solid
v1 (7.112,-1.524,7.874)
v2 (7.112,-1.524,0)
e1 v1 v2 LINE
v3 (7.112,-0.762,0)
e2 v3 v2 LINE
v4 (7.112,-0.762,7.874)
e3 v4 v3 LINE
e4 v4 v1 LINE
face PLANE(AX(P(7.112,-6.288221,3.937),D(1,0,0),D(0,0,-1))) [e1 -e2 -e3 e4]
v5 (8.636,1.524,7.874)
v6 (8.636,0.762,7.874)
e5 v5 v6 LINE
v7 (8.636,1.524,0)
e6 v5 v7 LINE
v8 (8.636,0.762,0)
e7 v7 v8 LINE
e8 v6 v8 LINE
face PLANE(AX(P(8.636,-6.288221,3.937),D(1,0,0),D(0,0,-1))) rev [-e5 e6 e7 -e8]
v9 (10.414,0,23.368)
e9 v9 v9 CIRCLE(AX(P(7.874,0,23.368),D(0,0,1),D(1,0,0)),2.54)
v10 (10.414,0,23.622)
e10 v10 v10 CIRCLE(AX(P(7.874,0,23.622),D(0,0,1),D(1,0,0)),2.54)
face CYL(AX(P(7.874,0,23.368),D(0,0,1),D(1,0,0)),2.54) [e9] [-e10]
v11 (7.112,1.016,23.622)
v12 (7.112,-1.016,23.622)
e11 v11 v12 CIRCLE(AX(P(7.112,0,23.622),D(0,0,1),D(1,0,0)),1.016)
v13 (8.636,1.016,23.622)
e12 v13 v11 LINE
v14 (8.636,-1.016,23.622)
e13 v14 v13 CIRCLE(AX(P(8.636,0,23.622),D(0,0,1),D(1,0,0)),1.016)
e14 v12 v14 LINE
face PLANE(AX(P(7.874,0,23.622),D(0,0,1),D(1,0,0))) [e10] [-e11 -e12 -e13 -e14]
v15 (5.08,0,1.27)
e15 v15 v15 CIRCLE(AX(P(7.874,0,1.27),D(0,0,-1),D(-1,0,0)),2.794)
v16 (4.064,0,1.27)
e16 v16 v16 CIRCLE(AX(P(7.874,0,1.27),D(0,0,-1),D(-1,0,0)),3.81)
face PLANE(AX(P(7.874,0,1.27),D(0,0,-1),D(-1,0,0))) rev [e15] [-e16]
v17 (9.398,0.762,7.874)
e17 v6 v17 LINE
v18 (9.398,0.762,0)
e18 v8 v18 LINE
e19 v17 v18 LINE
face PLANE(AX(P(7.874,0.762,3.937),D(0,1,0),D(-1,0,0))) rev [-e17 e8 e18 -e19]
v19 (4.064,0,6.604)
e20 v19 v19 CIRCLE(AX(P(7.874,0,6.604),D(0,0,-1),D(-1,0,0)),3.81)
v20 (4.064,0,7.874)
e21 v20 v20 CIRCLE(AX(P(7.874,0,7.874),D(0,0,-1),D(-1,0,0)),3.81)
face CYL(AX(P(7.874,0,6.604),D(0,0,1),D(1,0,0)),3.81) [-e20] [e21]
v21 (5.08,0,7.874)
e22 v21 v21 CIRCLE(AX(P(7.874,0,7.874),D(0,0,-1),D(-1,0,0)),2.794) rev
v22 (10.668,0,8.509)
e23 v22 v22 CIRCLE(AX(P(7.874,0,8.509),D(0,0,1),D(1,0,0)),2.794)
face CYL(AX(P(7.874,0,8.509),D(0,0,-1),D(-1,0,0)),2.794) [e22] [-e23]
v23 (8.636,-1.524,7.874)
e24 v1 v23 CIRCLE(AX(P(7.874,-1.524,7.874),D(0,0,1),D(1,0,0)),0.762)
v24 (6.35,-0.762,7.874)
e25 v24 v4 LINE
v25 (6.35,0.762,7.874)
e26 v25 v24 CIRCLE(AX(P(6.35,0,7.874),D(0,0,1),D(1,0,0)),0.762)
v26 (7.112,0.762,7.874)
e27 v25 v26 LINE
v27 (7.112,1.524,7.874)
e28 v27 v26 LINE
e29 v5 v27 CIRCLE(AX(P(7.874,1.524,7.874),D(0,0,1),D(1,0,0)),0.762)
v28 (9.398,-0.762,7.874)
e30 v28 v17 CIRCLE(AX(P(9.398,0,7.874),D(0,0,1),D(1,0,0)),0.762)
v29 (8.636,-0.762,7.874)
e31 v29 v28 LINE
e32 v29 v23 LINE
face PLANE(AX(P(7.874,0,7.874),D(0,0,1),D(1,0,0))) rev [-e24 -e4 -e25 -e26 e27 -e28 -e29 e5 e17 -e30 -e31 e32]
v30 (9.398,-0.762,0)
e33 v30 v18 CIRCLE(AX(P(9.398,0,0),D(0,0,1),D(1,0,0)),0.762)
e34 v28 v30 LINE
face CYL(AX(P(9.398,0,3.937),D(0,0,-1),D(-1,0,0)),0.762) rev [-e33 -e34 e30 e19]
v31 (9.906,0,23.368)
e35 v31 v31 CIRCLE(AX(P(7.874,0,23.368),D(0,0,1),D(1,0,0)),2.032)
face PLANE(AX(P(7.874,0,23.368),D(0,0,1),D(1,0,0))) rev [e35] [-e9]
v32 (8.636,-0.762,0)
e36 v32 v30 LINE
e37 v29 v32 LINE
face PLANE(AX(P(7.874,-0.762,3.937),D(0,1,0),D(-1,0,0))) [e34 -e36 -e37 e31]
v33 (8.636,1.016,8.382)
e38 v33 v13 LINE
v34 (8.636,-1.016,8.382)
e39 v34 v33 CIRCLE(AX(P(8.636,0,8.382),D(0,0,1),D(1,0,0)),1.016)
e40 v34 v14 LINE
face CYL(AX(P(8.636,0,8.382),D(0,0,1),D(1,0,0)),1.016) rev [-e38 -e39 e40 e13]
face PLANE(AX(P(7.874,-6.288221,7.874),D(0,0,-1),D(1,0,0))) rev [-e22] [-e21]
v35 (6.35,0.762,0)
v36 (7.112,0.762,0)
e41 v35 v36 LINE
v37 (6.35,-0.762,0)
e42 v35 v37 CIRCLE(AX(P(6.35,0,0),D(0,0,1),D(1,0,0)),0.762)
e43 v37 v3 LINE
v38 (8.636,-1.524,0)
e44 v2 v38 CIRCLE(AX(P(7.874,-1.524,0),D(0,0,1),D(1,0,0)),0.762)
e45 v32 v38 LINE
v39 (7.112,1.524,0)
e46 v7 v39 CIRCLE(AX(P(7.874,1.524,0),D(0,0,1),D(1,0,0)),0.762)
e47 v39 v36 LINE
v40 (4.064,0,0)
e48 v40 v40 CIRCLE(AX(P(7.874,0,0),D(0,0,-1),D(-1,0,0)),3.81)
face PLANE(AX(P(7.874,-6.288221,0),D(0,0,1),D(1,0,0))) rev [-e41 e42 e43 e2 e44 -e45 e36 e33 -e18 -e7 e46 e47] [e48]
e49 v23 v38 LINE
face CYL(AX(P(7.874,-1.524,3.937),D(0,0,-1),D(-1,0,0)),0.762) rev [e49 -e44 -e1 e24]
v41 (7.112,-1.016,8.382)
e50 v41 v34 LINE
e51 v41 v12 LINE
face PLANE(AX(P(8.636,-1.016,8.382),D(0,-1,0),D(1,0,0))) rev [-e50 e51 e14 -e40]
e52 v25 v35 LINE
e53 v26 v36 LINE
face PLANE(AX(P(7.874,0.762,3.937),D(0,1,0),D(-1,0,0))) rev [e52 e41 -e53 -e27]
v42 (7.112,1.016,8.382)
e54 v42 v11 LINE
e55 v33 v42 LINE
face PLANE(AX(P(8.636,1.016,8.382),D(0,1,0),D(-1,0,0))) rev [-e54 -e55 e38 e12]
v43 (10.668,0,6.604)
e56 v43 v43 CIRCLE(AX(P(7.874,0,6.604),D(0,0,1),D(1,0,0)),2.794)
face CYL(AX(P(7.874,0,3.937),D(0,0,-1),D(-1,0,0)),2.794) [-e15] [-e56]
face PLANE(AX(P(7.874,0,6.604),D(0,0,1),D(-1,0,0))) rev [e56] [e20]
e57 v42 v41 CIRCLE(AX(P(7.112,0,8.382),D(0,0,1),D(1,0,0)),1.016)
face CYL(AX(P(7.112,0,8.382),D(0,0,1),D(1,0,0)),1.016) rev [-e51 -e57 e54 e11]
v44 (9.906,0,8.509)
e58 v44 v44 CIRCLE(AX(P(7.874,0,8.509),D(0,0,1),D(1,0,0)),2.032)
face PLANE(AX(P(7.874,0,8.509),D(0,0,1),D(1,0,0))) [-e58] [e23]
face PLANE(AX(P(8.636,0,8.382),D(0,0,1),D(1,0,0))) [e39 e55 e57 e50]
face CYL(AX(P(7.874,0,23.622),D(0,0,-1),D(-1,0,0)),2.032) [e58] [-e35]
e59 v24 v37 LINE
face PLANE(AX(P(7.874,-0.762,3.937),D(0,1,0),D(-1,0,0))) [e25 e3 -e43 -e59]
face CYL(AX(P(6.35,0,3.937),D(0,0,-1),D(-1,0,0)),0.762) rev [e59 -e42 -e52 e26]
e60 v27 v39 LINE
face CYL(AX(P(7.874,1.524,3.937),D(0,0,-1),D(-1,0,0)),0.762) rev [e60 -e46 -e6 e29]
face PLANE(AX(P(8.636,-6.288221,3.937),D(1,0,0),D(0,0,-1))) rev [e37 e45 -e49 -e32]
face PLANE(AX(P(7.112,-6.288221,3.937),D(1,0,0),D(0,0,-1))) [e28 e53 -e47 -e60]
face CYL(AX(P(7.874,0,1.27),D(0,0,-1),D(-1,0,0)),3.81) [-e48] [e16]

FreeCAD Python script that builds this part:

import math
import FreeCAD as App
import Part
import Sketcher
Q = App.Units.Quantity

doc = App.newDocument("Part")
body = doc.addObject("PartDesign::Body", "Body")

sketch1 = body.newObject("Sketcher::SketchObject", "Sketch")
sketch1.AttachmentSupport = (doc.getObject("XY_Plane"), [""])
sketch1.MapMode = "FlatFace"
sketch1.addGeometry(Part.Circle(App.Vector(7.874, 0, 0), App.Vector(0, 0, 1), 2.794), False)
sketch1.addGeometry(Part.ArcOfCircle(Part.Circle(App.Vector(6.35, 0, 0), App.Vector(0, 0, 1), 0.762), math.radians(90), math.radians(270)), False)
sketch1.addGeometry(Part.LineSegment(App.Vector(6.35, 0.762, 0), App.Vector(7.112, 0.762, 0)), False)
sketch1.addGeometry(Part.LineSegment(App.Vector(7.112, 0.762, 0), App.Vector(7.112, 1.524, 0)), False)
sketch1.addGeometry(Part.ArcOfCircle(Part.Circle(App.Vector(7.874, 1.524, 0), App.Vector(0, 0, 1), 0.762), math.radians(0), math.radians(180)), False)
sketch1.addGeometry(Part.LineSegment(App.Vector(8.636, 1.524, 0), App.Vector(8.636, 0.762, 0)), False)
sketch1.addGeometry(Part.LineSegment(App.Vector(8.636, 0.762, 0), App.Vector(9.398, 0.762, 0)), False)
sketch1.addGeometry(Part.ArcOfCircle(Part.Circle(App.Vector(9.398, 0, 0), App.Vector(0, 0, 1), 0.762), math.radians(-90), math.radians(90)), False)
sketch1.addGeometry(Part.LineSegment(App.Vector(9.398, -0.762, 0), App.Vector(8.636, -0.762, 0)), False)
sketch1.addGeometry(Part.LineSegment(App.Vector(8.636, -0.762, 0), App.Vector(8.636, -1.524, 0)), False)
sketch1.addGeometry(Part.ArcOfCircle(Part.Circle(App.Vector(7.874, -1.524, 0), App.Vector(0, 0, 1), 0.762), math.radians(180), math.radians(360)), False)
sketch1.addGeometry(Part.LineSegment(App.Vector(7.112, -1.524, 0), App.Vector(7.112, -0.762, 0)), False)
sketch1.addGeometry(Part.LineSegment(App.Vector(7.112, -0.762, 0), App.Vector(6.35, -0.762, 0)), False)
sketch1.addConstraint(Sketcher.Constraint("Tangent", 1, 1, 2, 1))
sketch1.addConstraint(Sketcher.Constraint("Coincident", 2, 2, 3, 1))
sketch1.addConstraint(Sketcher.Constraint("Tangent", 3, 2, 4, 2))
sketch1.addConstraint(Sketcher.Constraint("Tangent", 4, 1, 5, 1))
sketch1.addConstraint(Sketcher.Constraint("Coincident", 5, 2, 6, 1))
sketch1.addConstraint(Sketcher.Constraint("Tangent", 6, 2, 7, 2))
sketch1.addConstraint(Sketcher.Constraint("Tangent", 7, 1, 8, 1))
sketch1.addConstraint(Sketcher.Constraint("Coincident", 8, 2, 9, 1))
sketch1.addConstraint(Sketcher.Constraint("Tangent", 9, 2, 10, 2))
sketch1.addConstraint(Sketcher.Constraint("Tangent", 10, 1, 11, 1))
sketch1.addConstraint(Sketcher.Constraint("Coincident", 11, 2, 12, 1))
sketch1.addConstraint(Sketcher.Constraint("Tangent", 12, 2, 1, 2))
sketch1.addConstraint(Sketcher.Constraint("Horizontal", 2))
sketch1.addConstraint(Sketcher.Constraint("Vertical", 3))
sketch1.addConstraint(Sketcher.Constraint("Vertical", 5))
sketch1.addConstraint(Sketcher.Constraint("Horizontal", 6))
sketch1.addConstraint(Sketcher.Constraint("Horizontal", 8))
sketch1.addConstraint(Sketcher.Constraint("Vertical", 9))
sketch1.addConstraint(Sketcher.Constraint("Vertical", 11))
sketch1.addConstraint(Sketcher.Constraint("Horizontal", 12))
sketch1.addConstraint(Sketcher.Constraint("Equal", 1, 4))
sketch1.addConstraint(Sketcher.Constraint("Equal", 4, 7))
sketch1.addConstraint(Sketcher.Constraint("Equal", 7, 10))
sketch1.addConstraint(Sketcher.Constraint("Symmetric", 4, 3, 10, 3, -1))
sketch1.addConstraint(Sketcher.Constraint("PointOnObject", 0, 3, -1))
sketch1.addConstraint(Sketcher.Constraint("PointOnObject", 1, 3, -1))
sketch1.addConstraint(Sketcher.Constraint("PointOnObject", 7, 3, -1))
sketch1.addConstraint(Sketcher.Constraint("Vertical", 0, 3, 4, 3))
sketch1.addConstraint(Sketcher.Constraint("Equal", 2, 6))
sketch1.addConstraint(Sketcher.Constraint("Equal", 12, 3))
sketch1.addConstraint(Sketcher.Constraint("Diameter", 0, Q("0.22 in")))
sketch1.addConstraint(Sketcher.Constraint("Radius", 1, Q("0.03 in")))
sketch1.addConstraint(Sketcher.Constraint("DistanceX", 2, 1, 2, 2, Q("0.03 in")))
sketch1.addConstraint(Sketcher.Constraint("DistanceX", -1, 1, 0, 3, Q("0.31 in")))
pad1 = body.newObject("PartDesign::Pad", "Pad")
pad1.Profile = sketch1
pad1.Length = Q("0.155 in")

sketch2 = body.newObject("Sketcher::SketchObject", "Sketch001")
sketch2.AttachmentSupport = (doc.getObject("XY_Plane"), [""])
sketch2.MapMode = "FlatFace"
sketch2.addGeometry(Part.Circle(App.Vector(7.874, 0, 0), App.Vector(0, 0, 1), 3.81), False)
sketch2.addGeometry(Part.Circle(App.Vector(7.874, 0, 0), App.Vector(0, 0, 1), 2.794), False)
sketch2.addConstraint(Sketcher.Constraint("Coincident", 1, 3, 0, 3))
sketch2.addConstraint(Sketcher.Constraint("PointOnObject", 0, 3, -1))
sketch2.addConstraint(Sketcher.Constraint("Diameter", 0, Q("0.3 in")))
sketch2.addConstraint(Sketcher.Constraint("Diameter", 1, Q("0.22 in")))
sketch2.addConstraint(Sketcher.Constraint("DistanceX", -1, 1, 0, 3, Q("0.31 in")))
pad2 = body.newObject("PartDesign::Pad", "Pad001")
pad2.Profile = sketch2
pad2.Length = Q("0.05 in")
doc.recompute()

datumplane = body.newObject("PartDesign::Plane", "DatumPlane")
datumplane.AttachmentSupport = (doc.getObject("XY_Plane"), [""])
datumplane.MapMode = "FlatFace"
datumplane.AttachmentOffset = App.Placement(App.Vector(0, 0, 0.155 * 25.4), App.Rotation())
mirrored = body.newObject("PartDesign::Mirrored", "Mirrored")
mirrored.Originals = [pad1, pad2]
mirrored.MirrorPlane = (datumplane, [""])
body.Tip = mirrored

sketch3 = body.newObject("Sketcher::SketchObject", "Sketch002")
sketch3.AttachmentSupport = (doc.getObject("XY_Plane"), [""])
sketch3.MapMode = "FlatFace"
sketch3.AttachmentOffset = App.Placement(App.Vector(0, 0, 0.31 * 25.4), App.Rotation())
sketch3.addGeometry(Part.Circle(App.Vector(7.874, 0, 0), App.Vector(0, 0, 1), 2.794), False)
sketch3.addConstraint(Sketcher.Constraint("PointOnObject", 0, 3, -1))
sketch3.addConstraint(Sketcher.Constraint("Diameter", 0, Q("0.22 in")))
sketch3.addConstraint(Sketcher.Constraint("DistanceX", -1, 1, 0, 3, Q("0.31 in")))
pad3 = body.newObject("PartDesign::Pad", "Pad002")
pad3.Profile = sketch3
pad3.Length = Q("0.025 in")

sketch4 = body.newObject("Sketcher::SketchObject", "Sketch003")
sketch4.AttachmentSupport = (doc.getObject("XY_Plane"), [""])
sketch4.MapMode = "FlatFace"
sketch4.AttachmentOffset = App.Placement(App.Vector(0, 0, 0.335 * 25.4), App.Rotation())
sketch4.addGeometry(Part.Circle(App.Vector(7.874, 0, 0), App.Vector(0, 0, 1), 2.032), False)
sketch4.addConstraint(Sketcher.Constraint("PointOnObject", 0, 3, -1))
sketch4.addConstraint(Sketcher.Constraint("Diameter", 0, Q("0.16 in")))
sketch4.addConstraint(Sketcher.Constraint("DistanceX", -1, 1, 0, 3, Q("0.31 in")))
pad4 = body.newObject("PartDesign::Pad", "Pad003")
pad4.Profile = sketch4
pad4.Length = Q("0.595 in")

sketch5 = body.newObject("Sketcher::SketchObject", "Sketch004")
sketch5.AttachmentSupport = (doc.getObject("XY_Plane"), [""])
sketch5.MapMode = "FlatFace"
sketch5.AttachmentOffset = App.Placement(App.Vector(0, 0, 0.93 * 25.4), App.Rotation())
sketch5.addGeometry(Part.Circle(App.Vector(7.874, 0, 0), App.Vector(0, 0, 1), 2.54), False)
sketch5.addGeometry(Part.Circle(App.Vector(7.874, 0, 0), App.Vector(0, 0, 1), 2.032), False)
sketch5.addConstraint(Sketcher.Constraint("Coincident", 1, 3, 0, 3))
sketch5.addConstraint(Sketcher.Constraint("PointOnObject", 0, 3, -1))
sketch5.addConstraint(Sketcher.Constraint("Diameter", 0, Q("0.2 in")))
sketch5.addConstraint(Sketcher.Constraint("Diameter", 1, Q("0.16 in")))
sketch5.addConstraint(Sketcher.Constraint("DistanceX", -1, 1, 0, 3, Q("0.31 in")))
pad5 = body.newObject("PartDesign::Pad", "Pad004")
pad5.Profile = sketch5
pad5.Length = Q("0.01 in")
pad5.Reversed = True

sketch6 = body.newObject("Sketcher::SketchObject", "Sketch005")
sketch6.AttachmentSupport = (doc.getObject("XY_Plane"), [""])
sketch6.MapMode = "FlatFace"
sketch6.AttachmentOffset = App.Placement(App.Vector(0, 0, 0.93 * 25.4), App.Rotation())
sketch6.addGeometry(Part.LineSegment(App.Vector(7.112, -1.016, 0), App.Vector(8.636, -1.016, 0)), False)
sketch6.addGeometry(Part.ArcOfCircle(Part.Circle(App.Vector(8.636, 0, 0), App.Vector(0, 0, 1), 1.016), math.radians(-90), math.radians(90)), False)
sketch6.addGeometry(Part.LineSegment(App.Vector(8.636, 1.016, 0), App.Vector(7.112, 1.016, 0)), False)
sketch6.addGeometry(Part.ArcOfCircle(Part.Circle(App.Vector(7.112, 0, 0), App.Vector(0, 0, 1), 1.016), math.radians(90), math.radians(270)), False)
sketch6.addConstraint(Sketcher.Constraint("Tangent", 0, 2, 1, 1))
sketch6.addConstraint(Sketcher.Constraint("Tangent", 1, 2, 2, 1))
sketch6.addConstraint(Sketcher.Constraint("Tangent", 2, 2, 3, 1))
sketch6.addConstraint(Sketcher.Constraint("Tangent", 3, 2, 0, 1))
sketch6.addConstraint(Sketcher.Constraint("Horizontal", 0))
sketch6.addConstraint(Sketcher.Constraint("Horizontal", 2))
sketch6.addConstraint(Sketcher.Constraint("PointOnObject", 1, 3, -1))
sketch6.addConstraint(Sketcher.Constraint("Radius", 1, Q("0.04 in")))
sketch6.addConstraint(Sketcher.Constraint("DistanceX", 0, 1, 0, 2, Q("0.06 in")))
sketch6.addConstraint(Sketcher.Constraint("DistanceX", -1, 1, 1, 3, Q("0.34 in")))
pocket1 = body.newObject("PartDesign::Pocket", "Pocket")
pocket1.Profile = sketch6
pocket1.Length = Q("0.6 in")

doc.recompute()
